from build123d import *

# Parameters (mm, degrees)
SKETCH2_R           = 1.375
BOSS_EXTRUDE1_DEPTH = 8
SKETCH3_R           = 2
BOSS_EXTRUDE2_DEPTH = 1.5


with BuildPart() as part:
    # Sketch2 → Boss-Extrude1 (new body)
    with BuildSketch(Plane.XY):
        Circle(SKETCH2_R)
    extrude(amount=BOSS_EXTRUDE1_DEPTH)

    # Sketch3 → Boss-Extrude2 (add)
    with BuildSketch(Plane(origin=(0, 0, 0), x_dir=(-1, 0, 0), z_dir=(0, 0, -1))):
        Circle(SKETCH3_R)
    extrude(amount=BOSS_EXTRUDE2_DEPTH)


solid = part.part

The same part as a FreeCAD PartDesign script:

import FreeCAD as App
import Part
import Sketcher
Q = App.Units.Quantity

doc = App.newDocument("Part")
body = doc.addObject("PartDesign::Body", "Body")

# Sketch on XY plane
sketch1 = body.newObject("Sketcher::SketchObject", "Sketch")
sketch1.AttachmentSupport = (doc.getObject("XY_Plane"), [""])
sketch1.MapMode = "FlatFace"
sketch1.addGeometry(Part.Circle(App.Vector(0, 0, 0), App.Vector(0, 0, 1), 1.4), False)
sketch1.addConstraint(Sketcher.Constraint("Coincident", 0, 3, -1, 1))
sketch1.addConstraint(Sketcher.Constraint("Diameter", 0, Q("2.75 mm")))
pad1 = body.newObject("PartDesign::Pad", "Pad")
pad1.Profile = sketch1
pad1.Length = 8

# Sketch on XY plane
sketch2 = body.newObject("Sketcher::SketchObject", "Sketch001")
sketch2.AttachmentSupport = (doc.getObject("XY_Plane"), [""])
sketch2.MapMode = "FlatFace"
sketch2.addGeometry(Part.Circle(App.Vector(0, 0, 0), App.Vector(0, 0, 1), 2), False)
sketch2.addConstraint(Sketcher.Constraint("Coincident", 0, 3, -1, 1))
sketch2.addConstraint(Sketcher.Constraint("Diameter", 0, Q("4 mm")))
pad2 = body.newObject("PartDesign::Pad", "Pad001")
pad2.Profile = sketch2
pad2.Length = 1.5
pad2.Reversed = True

doc.recompute()
